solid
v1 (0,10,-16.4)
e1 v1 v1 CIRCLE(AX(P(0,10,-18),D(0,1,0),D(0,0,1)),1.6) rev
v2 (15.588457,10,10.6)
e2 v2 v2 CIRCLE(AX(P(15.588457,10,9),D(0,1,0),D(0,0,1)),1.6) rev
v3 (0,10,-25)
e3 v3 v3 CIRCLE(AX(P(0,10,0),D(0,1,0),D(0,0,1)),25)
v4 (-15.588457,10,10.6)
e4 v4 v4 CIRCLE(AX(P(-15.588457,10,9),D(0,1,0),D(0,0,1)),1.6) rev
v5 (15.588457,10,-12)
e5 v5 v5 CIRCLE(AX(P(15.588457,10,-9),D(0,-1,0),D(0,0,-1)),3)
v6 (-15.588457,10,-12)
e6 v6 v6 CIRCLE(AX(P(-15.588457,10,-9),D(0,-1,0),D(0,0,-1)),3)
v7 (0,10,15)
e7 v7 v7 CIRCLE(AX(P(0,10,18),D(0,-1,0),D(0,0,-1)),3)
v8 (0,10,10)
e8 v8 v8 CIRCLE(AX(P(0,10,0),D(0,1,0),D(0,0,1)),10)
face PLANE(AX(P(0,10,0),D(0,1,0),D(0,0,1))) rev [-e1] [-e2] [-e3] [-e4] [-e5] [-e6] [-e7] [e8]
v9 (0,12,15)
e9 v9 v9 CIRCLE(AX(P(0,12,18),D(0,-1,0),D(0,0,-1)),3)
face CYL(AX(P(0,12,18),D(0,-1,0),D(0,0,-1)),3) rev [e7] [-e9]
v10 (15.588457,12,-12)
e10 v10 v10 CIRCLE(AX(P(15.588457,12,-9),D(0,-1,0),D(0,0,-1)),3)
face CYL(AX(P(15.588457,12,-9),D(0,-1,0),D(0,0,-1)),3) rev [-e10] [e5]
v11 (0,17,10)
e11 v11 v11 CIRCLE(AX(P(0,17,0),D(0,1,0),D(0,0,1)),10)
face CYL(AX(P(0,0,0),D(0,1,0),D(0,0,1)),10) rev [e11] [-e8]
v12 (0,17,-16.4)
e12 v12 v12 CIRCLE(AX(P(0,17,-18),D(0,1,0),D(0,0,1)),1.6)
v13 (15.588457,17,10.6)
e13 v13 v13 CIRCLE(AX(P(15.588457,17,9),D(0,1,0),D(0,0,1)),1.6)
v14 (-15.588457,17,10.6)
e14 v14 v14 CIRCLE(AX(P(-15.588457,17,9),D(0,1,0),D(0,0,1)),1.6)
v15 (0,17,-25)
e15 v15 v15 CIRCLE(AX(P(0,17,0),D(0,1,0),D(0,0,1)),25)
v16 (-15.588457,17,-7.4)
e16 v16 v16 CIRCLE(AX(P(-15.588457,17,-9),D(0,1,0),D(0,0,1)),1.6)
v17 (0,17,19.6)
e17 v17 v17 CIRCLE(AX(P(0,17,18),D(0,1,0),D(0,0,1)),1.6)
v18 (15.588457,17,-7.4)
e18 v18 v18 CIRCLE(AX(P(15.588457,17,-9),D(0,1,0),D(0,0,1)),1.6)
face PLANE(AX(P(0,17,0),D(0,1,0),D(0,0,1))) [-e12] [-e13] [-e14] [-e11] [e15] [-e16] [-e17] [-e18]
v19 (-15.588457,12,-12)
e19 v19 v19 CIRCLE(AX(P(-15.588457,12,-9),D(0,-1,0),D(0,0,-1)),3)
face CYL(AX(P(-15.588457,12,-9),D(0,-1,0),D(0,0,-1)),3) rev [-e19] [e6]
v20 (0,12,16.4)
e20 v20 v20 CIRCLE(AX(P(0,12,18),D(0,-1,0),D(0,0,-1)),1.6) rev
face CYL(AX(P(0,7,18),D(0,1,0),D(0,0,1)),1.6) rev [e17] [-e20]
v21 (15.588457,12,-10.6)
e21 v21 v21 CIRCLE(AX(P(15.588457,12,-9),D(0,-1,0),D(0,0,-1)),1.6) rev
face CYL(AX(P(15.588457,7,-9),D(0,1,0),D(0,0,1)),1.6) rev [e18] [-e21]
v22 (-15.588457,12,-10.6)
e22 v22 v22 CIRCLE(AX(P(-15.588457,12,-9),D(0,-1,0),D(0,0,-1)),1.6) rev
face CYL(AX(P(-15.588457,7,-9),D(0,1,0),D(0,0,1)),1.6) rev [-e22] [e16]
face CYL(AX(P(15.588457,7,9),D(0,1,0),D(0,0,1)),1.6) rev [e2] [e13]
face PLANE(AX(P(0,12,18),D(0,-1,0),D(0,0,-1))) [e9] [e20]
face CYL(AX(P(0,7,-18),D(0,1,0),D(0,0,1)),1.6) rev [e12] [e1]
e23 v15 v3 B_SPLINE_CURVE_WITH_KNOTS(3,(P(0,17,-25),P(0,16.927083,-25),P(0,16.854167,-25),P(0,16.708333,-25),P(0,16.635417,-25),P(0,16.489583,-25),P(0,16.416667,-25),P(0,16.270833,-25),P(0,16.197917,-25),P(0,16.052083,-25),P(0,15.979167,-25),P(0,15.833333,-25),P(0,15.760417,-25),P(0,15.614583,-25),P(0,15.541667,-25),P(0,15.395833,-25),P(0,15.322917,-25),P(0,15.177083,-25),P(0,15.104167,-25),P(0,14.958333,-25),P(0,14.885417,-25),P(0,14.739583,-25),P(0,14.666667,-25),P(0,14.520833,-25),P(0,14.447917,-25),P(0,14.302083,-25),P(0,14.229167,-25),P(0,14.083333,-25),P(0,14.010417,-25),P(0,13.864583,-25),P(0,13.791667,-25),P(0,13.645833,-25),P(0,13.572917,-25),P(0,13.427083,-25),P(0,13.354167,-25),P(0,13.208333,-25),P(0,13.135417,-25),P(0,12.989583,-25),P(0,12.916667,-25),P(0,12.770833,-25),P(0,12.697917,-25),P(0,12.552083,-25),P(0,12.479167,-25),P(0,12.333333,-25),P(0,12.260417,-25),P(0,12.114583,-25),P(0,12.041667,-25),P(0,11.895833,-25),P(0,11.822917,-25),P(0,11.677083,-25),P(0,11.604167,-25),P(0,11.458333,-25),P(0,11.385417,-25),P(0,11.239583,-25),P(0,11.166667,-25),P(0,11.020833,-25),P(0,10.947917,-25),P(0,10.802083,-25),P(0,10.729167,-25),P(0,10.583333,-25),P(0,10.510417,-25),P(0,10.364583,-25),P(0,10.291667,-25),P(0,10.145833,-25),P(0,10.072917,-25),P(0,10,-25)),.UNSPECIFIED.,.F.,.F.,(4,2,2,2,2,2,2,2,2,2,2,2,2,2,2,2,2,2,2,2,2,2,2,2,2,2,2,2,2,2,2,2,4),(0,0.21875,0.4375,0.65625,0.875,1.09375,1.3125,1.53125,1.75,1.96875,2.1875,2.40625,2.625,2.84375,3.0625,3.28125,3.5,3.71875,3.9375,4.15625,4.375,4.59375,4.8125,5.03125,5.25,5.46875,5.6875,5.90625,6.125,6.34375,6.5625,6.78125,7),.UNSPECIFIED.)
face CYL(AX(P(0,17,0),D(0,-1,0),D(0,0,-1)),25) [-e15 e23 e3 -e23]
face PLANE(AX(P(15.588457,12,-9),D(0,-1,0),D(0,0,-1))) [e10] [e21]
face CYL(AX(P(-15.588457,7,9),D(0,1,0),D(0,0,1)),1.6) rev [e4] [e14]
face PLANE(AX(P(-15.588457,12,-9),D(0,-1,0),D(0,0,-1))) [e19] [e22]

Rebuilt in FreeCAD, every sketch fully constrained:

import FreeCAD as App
import Part
import Sketcher
from FreeCAD import Vector
Q = App.Units.Quantity

doc = App.newDocument("Part")
params = doc.addObject("Spreadsheet::Sheet", "Params")
for row, (alias, value) in enumerate([
    ("sketch1_diameter", "6 mm"),
    ("pad1_length", "10 mm"),
    ("sketch2_diameter", "6 mm"),
    ("pad2_length", "10 mm"),
    ("sketch3_diameter", "6 mm"),
    ("pad3_length", "10 mm"),
    ("sketch4_diameter", "6 mm"),
    ("pad4_length", "10 mm"),
    ("sketch5_diameter", "6 mm"),
    ("pad5_length", "10 mm"),
    ("sketch6_diameter", "6 mm"),
    ("pad6_length", "10 mm"),
    ("sketch7_diameter", "50 mm"),
    ("pad7_length", "7 mm"),
    ("sketch8_diameter", "20 mm"),
    ("sketch9_diameter", "3.2 mm"),
    ("pocket2_length", "10 mm"),
    ("pocket3_length", "10 mm"),
    ("sketch11_diameter", "6 mm"),
    ("pocket4_length", "2 mm"),
], start=1):
    params.set(f"A{row}", alias)
    params.set(f"B{row}", "=" + value)
    params.setAlias(f"B{row}", alias)

body = doc.addObject("PartDesign::Body", "Body")

sketch1 = body.newObject("Sketcher::SketchObject", "Sketch")
sketch1.AttachmentSupport = (doc.getObject("XZ_Plane"), [""])
sketch1.MapMode = "FlatFace"
sketch1.addGeometry(Part.Circle(Vector(0, -18, 0), Vector(0, 0, 1), 3), False)
sketch1.addConstraint(Sketcher.Constraint("PointOnObject", 0, 3, -2))
sketch1.addConstraint(Sketcher.Constraint("Diameter", 0, Q("6 mm")))
sketch1.addConstraint(Sketcher.Constraint("DistanceY", 0, 3, -1, 1, Q("18 mm")))
sketch1.setExpression("Constraints[1]", "Params.sketch1_diameter")
pad1 = body.newObject("PartDesign::Pad", "Pad")
pad1.Profile = sketch1
pad1.setExpression("Length", "Params.pad1_length")
pad1.Reversed = True
body2 = doc.addObject("PartDesign::Body", "Body001")

sketch2 = body2.newObject("Sketcher::SketchObject", "Sketch001")
sketch2.AttachmentSupport = (doc.getObject("XZ_Plane001"), [""])
sketch2.MapMode = "FlatFace"
sketch2.addGeometry(Part.Circle(Vector(15.6, -9, 0), Vector(0, 0, 1), 3), False)
sketch2.addConstraint(Sketcher.Constraint("Diameter", 0, Q("6 mm")))
sketch2.addConstraint(Sketcher.Constraint("DistanceY", 0, 3, -1, 1, Q("9 mm")))
sketch2.addConstraint(Sketcher.Constraint("DistanceX", -1, 1, 0, 3, Q("15.588457 mm")))
sketch2.setExpression("Constraints[0]", "Params.sketch2_diameter")
pad2 = body2.newObject("PartDesign::Pad", "Pad001")
pad2.Profile = sketch2
pad2.setExpression("Length", "Params.pad2_length")
pad2.Reversed = True
body3 = doc.addObject("PartDesign::Body", "Body002")

sketch3 = body3.newObject("Sketcher::SketchObject", "Sketch002")
sketch3.AttachmentSupport = (doc.getObject("XZ_Plane002"), [""])
sketch3.MapMode = "FlatFace"
sketch3.addGeometry(Part.Circle(Vector(15.6, 9, 0), Vector(0, 0, 1), 3), False)
sketch3.addConstraint(Sketcher.Constraint("Diameter", 0, Q("6 mm")))
sketch3.addConstraint(Sketcher.Constraint("DistanceY", -1, 1, 0, 3, Q("9 mm")))
sketch3.addConstraint(Sketcher.Constraint("DistanceX", -1, 1, 0, 3, Q("15.588457 mm")))
sketch3.setExpression("Constraints[0]", "Params.sketch3_diameter")
pad3 = body3.newObject("PartDesign::Pad", "Pad002")
pad3.Profile = sketch3
pad3.setExpression("Length", "Params.pad3_length")
pad3.Reversed = True
body4 = doc.addObject("PartDesign::Body", "Body003")

sketch4 = body4.newObject("Sketcher::SketchObject", "Sketch003")
sketch4.AttachmentSupport = (doc.getObject("XZ_Plane003"), [""])
sketch4.MapMode = "FlatFace"
sketch4.addGeometry(Part.Circle(Vector(0, 18, 0), Vector(0, 0, 1), 3), False)
sketch4.addConstraint(Sketcher.Constraint("PointOnObject", 0, 3, -2))
sketch4.addConstraint(Sketcher.Constraint("Diameter", 0, Q("6 mm")))
sketch4.addConstraint(Sketcher.Constraint("DistanceY", -1, 1, 0, 3, Q("18 mm")))
sketch4.setExpression("Constraints[1]", "Params.sketch4_diameter")
pad4 = body4.newObject("PartDesign::Pad", "Pad003")
pad4.Profile = sketch4
pad4.setExpression("Length", "Params.pad4_length")
pad4.Reversed = True
body5 = doc.addObject("PartDesign::Body", "Body004")

sketch5 = body5.newObject("Sketcher::SketchObject", "Sketch004")
sketch5.AttachmentSupport = (doc.getObject("XZ_Plane004"), [""])
sketch5.MapMode = "FlatFace"
sketch5.addGeometry(Part.Circle(Vector(-15.6, 9, 0), Vector(0, 0, 1), 3), False)
sketch5.addConstraint(Sketcher.Constraint("Diameter", 0, Q("6 mm")))
sketch5.addConstraint(Sketcher.Constraint("DistanceY", -1, 1, 0, 3, Q("9 mm")))
sketch5.addConstraint(Sketcher.Constraint("DistanceX", 0, 3, -1, 1, Q("15.588457 mm")))
sketch5.setExpression("Constraints[0]", "Params.sketch5_diameter")
pad5 = body5.newObject("PartDesign::Pad", "Pad004")
pad5.Profile = sketch5
pad5.setExpression("Length", "Params.pad5_length")
pad5.Reversed = True
body6 = doc.addObject("PartDesign::Body", "Body005")

sketch6 = body6.newObject("Sketcher::SketchObject", "Sketch005")
sketch6.AttachmentSupport = (doc.getObject("XZ_Plane005"), [""])
sketch6.MapMode = "FlatFace"
sketch6.addGeometry(Part.Circle(Vector(-15.6, -9, 0), Vector(0, 0, 1), 3), False)
sketch6.addConstraint(Sketcher.Constraint("Diameter", 0, Q("6 mm")))
sketch6.addConstraint(Sketcher.Constraint("DistanceY", 0, 3, -1, 1, Q("9 mm")))
sketch6.addConstraint(Sketcher.Constraint("DistanceX", 0, 3, -1, 1, Q("15.588457 mm")))
sketch6.setExpression("Constraints[0]", "Params.sketch6_diameter")
pad6 = body6.newObject("PartDesign::Pad", "Pad005")
pad6.Profile = sketch6
pad6.setExpression("Length", "Params.pad6_length")
pad6.Reversed = True
body.AllowCompound = True
doc.recompute()

boolean = body.newObject("PartDesign::Boolean", "Boolean")
boolean.Type = "Fuse"
boolean.addObjects([body2])
doc.recompute()

boolean2 = body.newObject("PartDesign::Boolean", "Boolean001")
boolean2.Type = "Fuse"
boolean2.addObjects([body3])
doc.recompute()

boolean3 = body.newObject("PartDesign::Boolean", "Boolean002")
boolean3.Type = "Fuse"
boolean3.addObjects([body4])
doc.recompute()

boolean4 = body.newObject("PartDesign::Boolean", "Boolean003")
boolean4.Type = "Fuse"
boolean4.addObjects([body5])
doc.recompute()

boolean5 = body.newObject("PartDesign::Boolean", "Boolean004")
boolean5.Type = "Fuse"
boolean5.addObjects([body6])

sketch7 = body.newObject("Sketcher::SketchObject", "Sketch006")
sketch7.AttachmentSupport = (doc.getObject("XZ_Plane"), [""])
sketch7.MapMode = "FlatFace"
sketch7.AttachmentOffset = App.Placement(Vector(0, 0, -10), App.Rotation())
sketch7.addGeometry(Part.Circle(Vector(0, 0, 0), Vector(0, 0, 1), 25), False)
sketch7.addConstraint(Sketcher.Constraint("Coincident", 0, 3, -1, 1))
sketch7.addConstraint(Sketcher.Constraint("Diameter", 0, Q("50 mm")))
sketch7.setExpression("Constraints[1]", "Params.sketch7_diameter")
pad7 = body.newObject("PartDesign::Pad", "Pad006")
pad7.Profile = sketch7
pad7.setExpression("Length", "Params.pad7_length")
pad7.Reversed = True

sketch8 = body.newObject("Sketcher::SketchObject", "Sketch007")
sketch8.AttachmentSupport = (doc.getObject("XZ_Plane"), [""])
sketch8.MapMode = "FlatFace"
sketch8.AttachmentOffset = App.Placement(Vector(0, 0, -17), App.Rotation())
sketch8.addGeometry(Part.Circle(Vector(0, 0, 0), Vector(0, 0, 1), 10), False)
sketch8.addConstraint(Sketcher.Constraint("Coincident", 0, 3, -1, 1))
sketch8.addConstraint(Sketcher.Constraint("Diameter", 0, Q("20 mm")))
sketch8.setExpression("Constraints[1]", "Params.sketch8_diameter")
pocket1 = body.newObject("PartDesign::Pocket", "Pocket")
pocket1.Profile = sketch8
pocket1.Type = "ThroughAll"
pocket1.Reversed = True

sketch9 = body.newObject("Sketcher::SketchObject", "Sketch008")
sketch9.AttachmentSupport = (doc.getObject("XZ_Plane"), [""])
sketch9.MapMode = "FlatFace"
sketch9.AttachmentOffset = App.Placement(Vector(0, 0, -17), App.Rotation())
sketch9.addGeometry(Part.Circle(Vector(0, -18, 0), Vector(0, 0, 1), 1.6), False)
sketch9.addGeometry(Part.Circle(Vector(15.6, -9, 0), Vector(0, 0, 1), 1.6), False)
sketch9.addGeometry(Part.Circle(Vector(15.6, 9, 0), Vector(0, 0, 1), 1.6), False)
sketch9.addGeometry(Part.Circle(Vector(0, 18, 0), Vector(0, 0, 1), 1.6), False)
sketch9.addGeometry(Part.Circle(Vector(-15.6, 9, 0), Vector(0, 0, 1), 1.6), False)
sketch9.addGeometry(Part.Circle(Vector(-15.6, -9, 0), Vector(0, 0, 1), 1.6), False)
sketch9.addConstraint(Sketcher.Constraint("Equal", 0, 1))
sketch9.addConstraint(Sketcher.Constraint("Equal", 1, 2))
sketch9.addConstraint(Sketcher.Constraint("Equal", 2, 3))
sketch9.addConstraint(Sketcher.Constraint("Equal", 3, 4))
sketch9.addConstraint(Sketcher.Constraint("Equal", 4, 5))
sketch9.addConstraint(Sketcher.Constraint("Symmetric", 0, 3, 3, 3, -1, 1))
sketch9.addConstraint(Sketcher.Constraint("Symmetric", 1, 3, 4, 3, -1, 1))
sketch9.addConstraint(Sketcher.Constraint("Symmetric", 2, 3, 5, 3, -1, 1))
sketch9.addConstraint(Sketcher.Constraint("Symmetric", 2, 3, 4, 3, -2))
sketch9.addConstraint(Sketcher.Constraint("PointOnObject", 0, 3, -2))
sketch9.addConstraint(Sketcher.Constraint("Diameter", 0, Q("3.2 mm")))
sketch9.addConstraint(Sketcher.Constraint("DistanceY", 0, 3, -1, 1, Q("18 mm")))
sketch9.addConstraint(Sketcher.Constraint("DistanceY", 1, 3, -1, 1, Q("9 mm")))
sketch9.addConstraint(Sketcher.Constraint("DistanceX", -1, 1, 1, 3, Q("15.588457 mm")))
sketch9.setExpression("Constraints[10]", "Params.sketch9_diameter")
pocket2 = body.newObject("PartDesign::Pocket", "Pocket001")
pocket2.Profile = sketch9
pocket2.setExpression("Length", "Params.pocket2_length")
pocket2.Reversed = True

sketch10 = body.newObject("Sketcher::SketchObject", "Sketch009")
sketch10.AttachmentSupport = (doc.getObject("XZ_Plane"), [""])
sketch10.MapMode = "FlatFace"
sketch10.addGeometry(Part.LineSegment(Vector(-20, 23, 0), Vector(-20, -23, 0)), False)
sketch10.addGeometry(Part.LineSegment(Vector(-20, -23, 0), Vector(27, -23, 0)), False)
sketch10.addGeometry(Part.LineSegment(Vector(27, -23, 0), Vector(27, 23, 0)), False)
sketch10.addGeometry(Part.LineSegment(Vector(27, 23, 0), Vector(-20, 23, 0)), False)
sketch10.addConstraint(Sketcher.Constraint("Coincident", 0, 2, 1, 1))
sketch10.addConstraint(Sketcher.Constraint("Coincident", 1, 2, 2, 1))
sketch10.addConstraint(Sketcher.Constraint("Coincident", 2, 2, 3, 1))
sketch10.addConstraint(Sketcher.Constraint("Coincident", 3, 2, 0, 1))
sketch10.addConstraint(Sketcher.Constraint("Vertical", 0))
sketch10.addConstraint(Sketcher.Constraint("Horizontal", 1))
sketch10.addConstraint(Sketcher.Constraint("Vertical", 2))
sketch10.addConstraint(Sketcher.Constraint("Horizontal", 3))
sketch10.addConstraint(Sketcher.Constraint("DistanceX", 1, 1, 1, 2, Q("46.619491 mm")))
sketch10.addConstraint(Sketcher.Constraint("DistanceY", 0, 2, 0, 1, Q("46.698911 mm")))
sketch10.addConstraint(Sketcher.Constraint("DistanceX", 0, 2, -1, 1, Q("20.013819 mm")))
sketch10.addConstraint(Sketcher.Constraint("DistanceY", 0, 2, -1, 1, Q("23.428875 mm")))
pocket3 = body.newObject("PartDesign::Pocket", "Pocket002")
pocket3.Profile = sketch10
pocket3.setExpression("Length", "Params.pocket3_length")

sketch11 = body.newObject("Sketcher::SketchObject", "Sketch010")
sketch11.AttachmentSupport = (doc.getObject("XZ_Plane"), [""])
sketch11.MapMode = "FlatFace"
sketch11.AttachmentOffset = App.Placement(Vector(0, 0, -10), App.Rotation())
sketch11.addGeometry(Part.Circle(Vector(0, 18, 0), Vector(0, 0, 1), 3), False)
sketch11.addGeometry(Part.Circle(Vector(-15.6, -9, 0), Vector(0, 0, 1), 3), False)
sketch11.addGeometry(Part.Circle(Vector(15.6, -9, 0), Vector(0, 0, 1), 3), False)
sketch11.addConstraint(Sketcher.Constraint("Equal", 0, 1))
sketch11.addConstraint(Sketcher.Constraint("Equal", 1, 2))
sketch11.addConstraint(Sketcher.Constraint("Symmetric", 1, 3, 2, 3, -2))
sketch11.addConstraint(Sketcher.Constraint("PointOnObject", 0, 3, -2))
sketch11.addConstraint(Sketcher.Constraint("Diameter", 0, Q("6 mm")))
sketch11.addConstraint(Sketcher.Constraint("DistanceY", -1, 1, 0, 3, Q("18 mm")))
sketch11.addConstraint(Sketcher.Constraint("DistanceY", 1, 3, -1, 1, Q("9 mm")))
sketch11.addConstraint(Sketcher.Constraint("DistanceX", 1, 3, -1, 1, Q("15.588457 mm")))
sketch11.setExpression("Constraints[4]", "Params.sketch11_diameter")
pocket4 = body.newObject("PartDesign::Pocket", "Pocket003")
pocket4.Profile = sketch11
pocket4.setExpression("Length", "Params.pocket4_length")

doc.recompute()
